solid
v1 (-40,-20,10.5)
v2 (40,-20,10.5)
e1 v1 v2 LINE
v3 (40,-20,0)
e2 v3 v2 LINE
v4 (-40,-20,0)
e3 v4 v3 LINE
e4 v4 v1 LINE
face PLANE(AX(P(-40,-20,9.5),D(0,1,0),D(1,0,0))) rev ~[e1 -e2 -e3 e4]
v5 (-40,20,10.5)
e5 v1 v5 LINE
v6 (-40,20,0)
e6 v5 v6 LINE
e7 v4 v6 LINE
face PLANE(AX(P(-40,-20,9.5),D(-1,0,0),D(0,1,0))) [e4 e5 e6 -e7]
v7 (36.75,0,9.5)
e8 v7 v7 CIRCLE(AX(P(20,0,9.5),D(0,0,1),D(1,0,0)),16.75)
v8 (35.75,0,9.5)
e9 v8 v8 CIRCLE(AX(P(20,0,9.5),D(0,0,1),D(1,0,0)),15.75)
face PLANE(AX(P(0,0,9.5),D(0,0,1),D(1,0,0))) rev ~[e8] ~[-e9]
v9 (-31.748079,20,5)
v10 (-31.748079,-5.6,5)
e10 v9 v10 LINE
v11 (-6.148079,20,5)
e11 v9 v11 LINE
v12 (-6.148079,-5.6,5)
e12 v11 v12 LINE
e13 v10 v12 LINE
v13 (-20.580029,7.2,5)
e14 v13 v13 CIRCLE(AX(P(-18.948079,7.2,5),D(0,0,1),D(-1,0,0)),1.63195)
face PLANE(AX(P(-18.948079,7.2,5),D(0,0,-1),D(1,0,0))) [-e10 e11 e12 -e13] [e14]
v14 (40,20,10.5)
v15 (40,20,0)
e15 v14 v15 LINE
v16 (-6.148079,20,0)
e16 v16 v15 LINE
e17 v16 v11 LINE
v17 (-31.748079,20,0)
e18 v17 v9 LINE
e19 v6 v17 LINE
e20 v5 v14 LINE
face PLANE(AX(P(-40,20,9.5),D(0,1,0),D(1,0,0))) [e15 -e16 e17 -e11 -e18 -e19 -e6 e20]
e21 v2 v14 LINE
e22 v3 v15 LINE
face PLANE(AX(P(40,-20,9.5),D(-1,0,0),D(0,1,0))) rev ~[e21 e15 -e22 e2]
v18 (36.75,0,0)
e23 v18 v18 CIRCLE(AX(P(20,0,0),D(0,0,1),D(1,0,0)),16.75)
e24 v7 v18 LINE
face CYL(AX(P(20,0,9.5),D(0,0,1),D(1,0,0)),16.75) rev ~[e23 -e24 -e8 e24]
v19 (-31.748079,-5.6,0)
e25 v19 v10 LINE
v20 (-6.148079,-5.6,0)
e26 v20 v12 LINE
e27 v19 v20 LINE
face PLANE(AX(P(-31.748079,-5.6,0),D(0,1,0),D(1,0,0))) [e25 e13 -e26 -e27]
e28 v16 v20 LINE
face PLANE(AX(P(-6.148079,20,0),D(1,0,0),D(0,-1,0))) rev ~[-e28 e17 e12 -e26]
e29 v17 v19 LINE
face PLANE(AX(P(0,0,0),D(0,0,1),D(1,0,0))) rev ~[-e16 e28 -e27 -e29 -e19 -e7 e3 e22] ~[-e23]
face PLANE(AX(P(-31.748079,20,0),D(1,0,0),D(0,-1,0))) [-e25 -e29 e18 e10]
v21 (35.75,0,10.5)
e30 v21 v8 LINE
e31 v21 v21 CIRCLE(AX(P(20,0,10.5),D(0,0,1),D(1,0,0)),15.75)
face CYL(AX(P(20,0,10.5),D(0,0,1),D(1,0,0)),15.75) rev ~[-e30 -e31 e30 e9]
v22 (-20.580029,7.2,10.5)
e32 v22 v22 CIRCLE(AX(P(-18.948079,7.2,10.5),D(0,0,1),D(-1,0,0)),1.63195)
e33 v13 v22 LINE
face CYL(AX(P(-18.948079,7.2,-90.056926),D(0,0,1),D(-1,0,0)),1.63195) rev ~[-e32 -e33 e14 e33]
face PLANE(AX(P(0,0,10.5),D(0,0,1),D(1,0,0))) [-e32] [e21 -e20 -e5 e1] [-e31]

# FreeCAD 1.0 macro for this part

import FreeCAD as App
import Part
import Sketcher
from FreeCAD import Vector

doc = App.newDocument("Part")
body = doc.addObject("PartDesign::Body", "Body")

# Sketch on XY plane
sketch1 = body.newObject("Sketcher::SketchObject", "Sketch")
sketch1.AttachmentSupport = (doc.getObject("XY_Plane"), [""])
sketch1.MapMode = "FlatFace"
sketch1.addGeometry(Part.LineSegment(Vector(-40, 20, 0), Vector(-40, -20, 0)), False)
sketch1.addGeometry(Part.LineSegment(Vector(-40, -20, 0), Vector(40, -20, 0)), False)
sketch1.addGeometry(Part.LineSegment(Vector(40, -20, 0), Vector(40, 20, 0)), False)
sketch1.addGeometry(Part.LineSegment(Vector(40, 20, 0), Vector(-40, 20, 0)), False)
sketch1.addConstraint(Sketcher.Constraint("Coincident", 0, 2, 1, 1))
sketch1.addConstraint(Sketcher.Constraint("Coincident", 1, 2, 2, 1))
sketch1.addConstraint(Sketcher.Constraint("Coincident", 2, 2, 3, 1))
sketch1.addConstraint(Sketcher.Constraint("Coincident", 3, 2, 0, 1))
sketch1.addConstraint(Sketcher.Constraint("Vertical", 0))
sketch1.addConstraint(Sketcher.Constraint("Horizontal", 1))
sketch1.addConstraint(Sketcher.Constraint("Vertical", 2))
sketch1.addConstraint(Sketcher.Constraint("Horizontal", 3))
sketch1.addConstraint(Sketcher.Constraint("Symmetric", 0, 2, 2, 2, -1, 1))
sketch1.addConstraint(Sketcher.Constraint("DistanceX", 1, 1, 1, 2, 80.0))
sketch1.addConstraint(Sketcher.Constraint("DistanceY", 0, 2, 0, 1, 40.0))
pad1 = body.newObject("PartDesign::Pad", "Pad")
pad1.Profile = sketch1
pad1.Length = 9.5

# Sketch on XY plane
sketch2 = body.newObject("Sketcher::SketchObject", "Sketch001")
sketch2.AttachmentSupport = (doc.getObject("XY_Plane"), [""])
sketch2.MapMode = "FlatFace"
sketch2.AttachmentOffset = App.Placement(Vector(0, 0, 9.5), App.Rotation())
sketch2.addGeometry(Part.Circle(Vector(20, 0, 0), Vector(0, 0, 1), 17), False)
sketch2.addConstraint(Sketcher.Constraint("PointOnObject", 0, 3, -1))
sketch2.addConstraint(Sketcher.Constraint("Diameter", 0, 33.5))
sketch2.addConstraint(Sketcher.Constraint("DistanceX", -1, 1, 0, 3, 20.0))
pocket1 = body.newObject("PartDesign::Pocket", "Pocket")
pocket1.Profile = sketch2
pocket1.Length = 9.5

# Sketch on XY plane
sketch3 = body.newObject("Sketcher::SketchObject", "Sketch002")
sketch3.AttachmentSupport = (doc.getObject("XY_Plane"), [""])
sketch3.MapMode = "FlatFace"
sketch3.AttachmentOffset = App.Placement(Vector(0, 0, 9.5), App.Rotation())
sketch3.addGeometry(Part.LineSegment(Vector(-40, 20, 0), Vector(-40, -20, 0)), False)
sketch3.addGeometry(Part.LineSegment(Vector(-40, -20, 0), Vector(40, -20, 0)), False)
sketch3.addGeometry(Part.LineSegment(Vector(40, -20, 0), Vector(40, 20, 0)), False)
sketch3.addGeometry(Part.LineSegment(Vector(40, 20, 0), Vector(-40, 20, 0)), False)
sketch3.addConstraint(Sketcher.Constraint("Coincident", 0, 2, 1, 1))
sketch3.addConstraint(Sketcher.Constraint("Coincident", 1, 2, 2, 1))
sketch3.addConstraint(Sketcher.Constraint("Coincident", 2, 2, 3, 1))
sketch3.addConstraint(Sketcher.Constraint("Coincident", 3, 2, 0, 1))
sketch3.addConstraint(Sketcher.Constraint("Vertical", 0))
sketch3.addConstraint(Sketcher.Constraint("Horizontal", 1))
sketch3.addConstraint(Sketcher.Constraint("Vertical", 2))
sketch3.addConstraint(Sketcher.Constraint("Horizontal", 3))
sketch3.addConstraint(Sketcher.Constraint("Symmetric", 0, 2, 2, 2, -1, 1))
sketch3.addConstraint(Sketcher.Constraint("DistanceX", 1, 1, 1, 2, 80.0))
sketch3.addConstraint(Sketcher.Constraint("DistanceY", 0, 2, 0, 1, 40.0))
pad2 = body.newObject("PartDesign::Pad", "Pad001")
pad2.Profile = sketch3
pad2.Length = 1

# Sketch on XY plane
sketch4 = body.newObject("Sketcher::SketchObject", "Sketch003")
sketch4.AttachmentSupport = (doc.getObject("XY_Plane"), [""])
sketch4.MapMode = "FlatFace"
sketch4.AttachmentOffset = App.Placement(Vector(0, 0, 10.5), App.Rotation())
sketch4.addGeometry(Part.Circle(Vector(20, 0, 0), Vector(0, 0, 1), 16), False)
sketch4.addConstraint(Sketcher.Constraint("PointOnObject", 0, 3, -1))
sketch4.addConstraint(Sketcher.Constraint("Diameter", 0, 31.5))
sketch4.addConstraint(Sketcher.Constraint("DistanceX", -1, 1, 0, 3, 20.0))
pocket2 = body.newObject("PartDesign::Pocket", "Pocket001")
pocket2.Profile = sketch4
pocket2.Length = 1

# Sketch on XY plane
sketch5 = body.newObject("Sketcher::SketchObject", "Sketch004")
sketch5.AttachmentSupport = (doc.getObject("XY_Plane"), [""])
sketch5.MapMode = "FlatFace"
sketch5.addGeometry(Part.Circle(Vector(-18.9, 7.2, 0), Vector(0, 0, 1), 1.6), False)
sketch5.addConstraint(Sketcher.Constraint("Diameter", 0, 3.2639))
sketch5.addConstraint(Sketcher.Constraint("DistanceY", -1, 1, 0, 3, 7.2))
sketch5.addConstraint(Sketcher.Constraint("DistanceX", 0, 3, -1, 1, 18.948079))
doc.recompute()
hole = body.newObject("PartDesign::Hole", "Hole")
hole.Profile = sketch5
hole.ThreadType = "None"
hole.Diameter = 3.2639
hole.DepthType = "ThroughAll"
hole.Reversed = True

# Sketch on XY plane
sketch6 = body.newObject("Sketcher::SketchObject", "Sketch005")
sketch6.AttachmentSupport = (doc.getObject("XY_Plane"), [""])
sketch6.MapMode = "FlatFace"
sketch6.addGeometry(Part.LineSegment(Vector(-32, -6, 0), Vector(-32, 20, 0)), False)
sketch6.addGeometry(Part.LineSegment(Vector(-32, 20, 0), Vector(-6, 20, 0)), False)
sketch6.addGeometry(Part.LineSegment(Vector(-6, 20, 0), Vector(-6, -6, 0)), False)
sketch6.addGeometry(Part.LineSegment(Vector(-6, -6, 0), Vector(-32, -6, 0)), False)
sketch6.addConstraint(Sketcher.Constraint("Coincident", 0, 2, 1, 1))
sketch6.addConstraint(Sketcher.Constraint("Coincident", 1, 2, 2, 1))
sketch6.addConstraint(Sketcher.Constraint("Coincident", 2, 2, 3, 1))
sketch6.addConstraint(Sketcher.Constraint("Coincident", 3, 2, 0, 1))
sketch6.addConstraint(Sketcher.Constraint("Vertical", 0))
sketch6.addConstraint(Sketcher.Constraint("Horizontal", 1))
sketch6.addConstraint(Sketcher.Constraint("Vertical", 2))
sketch6.addConstraint(Sketcher.Constraint("Horizontal", 3))
sketch6.addConstraint(Sketcher.Constraint("Equal", 3, 0))
sketch6.addConstraint(Sketcher.Constraint("DistanceX", 1, 1, 1, 2, 25.6))
sketch6.addConstraint(Sketcher.Constraint("DistanceY", -1, 1, 0, 2, 20.0))
sketch6.addConstraint(Sketcher.Constraint("DistanceX", 0, 2, -1, 1, 31.748079))
pocket3 = body.newObject("PartDesign::Pocket", "Pocket002")
pocket3.Profile = sketch6
pocket3.Length = 5
pocket3.Reversed = True

doc.recompute()
